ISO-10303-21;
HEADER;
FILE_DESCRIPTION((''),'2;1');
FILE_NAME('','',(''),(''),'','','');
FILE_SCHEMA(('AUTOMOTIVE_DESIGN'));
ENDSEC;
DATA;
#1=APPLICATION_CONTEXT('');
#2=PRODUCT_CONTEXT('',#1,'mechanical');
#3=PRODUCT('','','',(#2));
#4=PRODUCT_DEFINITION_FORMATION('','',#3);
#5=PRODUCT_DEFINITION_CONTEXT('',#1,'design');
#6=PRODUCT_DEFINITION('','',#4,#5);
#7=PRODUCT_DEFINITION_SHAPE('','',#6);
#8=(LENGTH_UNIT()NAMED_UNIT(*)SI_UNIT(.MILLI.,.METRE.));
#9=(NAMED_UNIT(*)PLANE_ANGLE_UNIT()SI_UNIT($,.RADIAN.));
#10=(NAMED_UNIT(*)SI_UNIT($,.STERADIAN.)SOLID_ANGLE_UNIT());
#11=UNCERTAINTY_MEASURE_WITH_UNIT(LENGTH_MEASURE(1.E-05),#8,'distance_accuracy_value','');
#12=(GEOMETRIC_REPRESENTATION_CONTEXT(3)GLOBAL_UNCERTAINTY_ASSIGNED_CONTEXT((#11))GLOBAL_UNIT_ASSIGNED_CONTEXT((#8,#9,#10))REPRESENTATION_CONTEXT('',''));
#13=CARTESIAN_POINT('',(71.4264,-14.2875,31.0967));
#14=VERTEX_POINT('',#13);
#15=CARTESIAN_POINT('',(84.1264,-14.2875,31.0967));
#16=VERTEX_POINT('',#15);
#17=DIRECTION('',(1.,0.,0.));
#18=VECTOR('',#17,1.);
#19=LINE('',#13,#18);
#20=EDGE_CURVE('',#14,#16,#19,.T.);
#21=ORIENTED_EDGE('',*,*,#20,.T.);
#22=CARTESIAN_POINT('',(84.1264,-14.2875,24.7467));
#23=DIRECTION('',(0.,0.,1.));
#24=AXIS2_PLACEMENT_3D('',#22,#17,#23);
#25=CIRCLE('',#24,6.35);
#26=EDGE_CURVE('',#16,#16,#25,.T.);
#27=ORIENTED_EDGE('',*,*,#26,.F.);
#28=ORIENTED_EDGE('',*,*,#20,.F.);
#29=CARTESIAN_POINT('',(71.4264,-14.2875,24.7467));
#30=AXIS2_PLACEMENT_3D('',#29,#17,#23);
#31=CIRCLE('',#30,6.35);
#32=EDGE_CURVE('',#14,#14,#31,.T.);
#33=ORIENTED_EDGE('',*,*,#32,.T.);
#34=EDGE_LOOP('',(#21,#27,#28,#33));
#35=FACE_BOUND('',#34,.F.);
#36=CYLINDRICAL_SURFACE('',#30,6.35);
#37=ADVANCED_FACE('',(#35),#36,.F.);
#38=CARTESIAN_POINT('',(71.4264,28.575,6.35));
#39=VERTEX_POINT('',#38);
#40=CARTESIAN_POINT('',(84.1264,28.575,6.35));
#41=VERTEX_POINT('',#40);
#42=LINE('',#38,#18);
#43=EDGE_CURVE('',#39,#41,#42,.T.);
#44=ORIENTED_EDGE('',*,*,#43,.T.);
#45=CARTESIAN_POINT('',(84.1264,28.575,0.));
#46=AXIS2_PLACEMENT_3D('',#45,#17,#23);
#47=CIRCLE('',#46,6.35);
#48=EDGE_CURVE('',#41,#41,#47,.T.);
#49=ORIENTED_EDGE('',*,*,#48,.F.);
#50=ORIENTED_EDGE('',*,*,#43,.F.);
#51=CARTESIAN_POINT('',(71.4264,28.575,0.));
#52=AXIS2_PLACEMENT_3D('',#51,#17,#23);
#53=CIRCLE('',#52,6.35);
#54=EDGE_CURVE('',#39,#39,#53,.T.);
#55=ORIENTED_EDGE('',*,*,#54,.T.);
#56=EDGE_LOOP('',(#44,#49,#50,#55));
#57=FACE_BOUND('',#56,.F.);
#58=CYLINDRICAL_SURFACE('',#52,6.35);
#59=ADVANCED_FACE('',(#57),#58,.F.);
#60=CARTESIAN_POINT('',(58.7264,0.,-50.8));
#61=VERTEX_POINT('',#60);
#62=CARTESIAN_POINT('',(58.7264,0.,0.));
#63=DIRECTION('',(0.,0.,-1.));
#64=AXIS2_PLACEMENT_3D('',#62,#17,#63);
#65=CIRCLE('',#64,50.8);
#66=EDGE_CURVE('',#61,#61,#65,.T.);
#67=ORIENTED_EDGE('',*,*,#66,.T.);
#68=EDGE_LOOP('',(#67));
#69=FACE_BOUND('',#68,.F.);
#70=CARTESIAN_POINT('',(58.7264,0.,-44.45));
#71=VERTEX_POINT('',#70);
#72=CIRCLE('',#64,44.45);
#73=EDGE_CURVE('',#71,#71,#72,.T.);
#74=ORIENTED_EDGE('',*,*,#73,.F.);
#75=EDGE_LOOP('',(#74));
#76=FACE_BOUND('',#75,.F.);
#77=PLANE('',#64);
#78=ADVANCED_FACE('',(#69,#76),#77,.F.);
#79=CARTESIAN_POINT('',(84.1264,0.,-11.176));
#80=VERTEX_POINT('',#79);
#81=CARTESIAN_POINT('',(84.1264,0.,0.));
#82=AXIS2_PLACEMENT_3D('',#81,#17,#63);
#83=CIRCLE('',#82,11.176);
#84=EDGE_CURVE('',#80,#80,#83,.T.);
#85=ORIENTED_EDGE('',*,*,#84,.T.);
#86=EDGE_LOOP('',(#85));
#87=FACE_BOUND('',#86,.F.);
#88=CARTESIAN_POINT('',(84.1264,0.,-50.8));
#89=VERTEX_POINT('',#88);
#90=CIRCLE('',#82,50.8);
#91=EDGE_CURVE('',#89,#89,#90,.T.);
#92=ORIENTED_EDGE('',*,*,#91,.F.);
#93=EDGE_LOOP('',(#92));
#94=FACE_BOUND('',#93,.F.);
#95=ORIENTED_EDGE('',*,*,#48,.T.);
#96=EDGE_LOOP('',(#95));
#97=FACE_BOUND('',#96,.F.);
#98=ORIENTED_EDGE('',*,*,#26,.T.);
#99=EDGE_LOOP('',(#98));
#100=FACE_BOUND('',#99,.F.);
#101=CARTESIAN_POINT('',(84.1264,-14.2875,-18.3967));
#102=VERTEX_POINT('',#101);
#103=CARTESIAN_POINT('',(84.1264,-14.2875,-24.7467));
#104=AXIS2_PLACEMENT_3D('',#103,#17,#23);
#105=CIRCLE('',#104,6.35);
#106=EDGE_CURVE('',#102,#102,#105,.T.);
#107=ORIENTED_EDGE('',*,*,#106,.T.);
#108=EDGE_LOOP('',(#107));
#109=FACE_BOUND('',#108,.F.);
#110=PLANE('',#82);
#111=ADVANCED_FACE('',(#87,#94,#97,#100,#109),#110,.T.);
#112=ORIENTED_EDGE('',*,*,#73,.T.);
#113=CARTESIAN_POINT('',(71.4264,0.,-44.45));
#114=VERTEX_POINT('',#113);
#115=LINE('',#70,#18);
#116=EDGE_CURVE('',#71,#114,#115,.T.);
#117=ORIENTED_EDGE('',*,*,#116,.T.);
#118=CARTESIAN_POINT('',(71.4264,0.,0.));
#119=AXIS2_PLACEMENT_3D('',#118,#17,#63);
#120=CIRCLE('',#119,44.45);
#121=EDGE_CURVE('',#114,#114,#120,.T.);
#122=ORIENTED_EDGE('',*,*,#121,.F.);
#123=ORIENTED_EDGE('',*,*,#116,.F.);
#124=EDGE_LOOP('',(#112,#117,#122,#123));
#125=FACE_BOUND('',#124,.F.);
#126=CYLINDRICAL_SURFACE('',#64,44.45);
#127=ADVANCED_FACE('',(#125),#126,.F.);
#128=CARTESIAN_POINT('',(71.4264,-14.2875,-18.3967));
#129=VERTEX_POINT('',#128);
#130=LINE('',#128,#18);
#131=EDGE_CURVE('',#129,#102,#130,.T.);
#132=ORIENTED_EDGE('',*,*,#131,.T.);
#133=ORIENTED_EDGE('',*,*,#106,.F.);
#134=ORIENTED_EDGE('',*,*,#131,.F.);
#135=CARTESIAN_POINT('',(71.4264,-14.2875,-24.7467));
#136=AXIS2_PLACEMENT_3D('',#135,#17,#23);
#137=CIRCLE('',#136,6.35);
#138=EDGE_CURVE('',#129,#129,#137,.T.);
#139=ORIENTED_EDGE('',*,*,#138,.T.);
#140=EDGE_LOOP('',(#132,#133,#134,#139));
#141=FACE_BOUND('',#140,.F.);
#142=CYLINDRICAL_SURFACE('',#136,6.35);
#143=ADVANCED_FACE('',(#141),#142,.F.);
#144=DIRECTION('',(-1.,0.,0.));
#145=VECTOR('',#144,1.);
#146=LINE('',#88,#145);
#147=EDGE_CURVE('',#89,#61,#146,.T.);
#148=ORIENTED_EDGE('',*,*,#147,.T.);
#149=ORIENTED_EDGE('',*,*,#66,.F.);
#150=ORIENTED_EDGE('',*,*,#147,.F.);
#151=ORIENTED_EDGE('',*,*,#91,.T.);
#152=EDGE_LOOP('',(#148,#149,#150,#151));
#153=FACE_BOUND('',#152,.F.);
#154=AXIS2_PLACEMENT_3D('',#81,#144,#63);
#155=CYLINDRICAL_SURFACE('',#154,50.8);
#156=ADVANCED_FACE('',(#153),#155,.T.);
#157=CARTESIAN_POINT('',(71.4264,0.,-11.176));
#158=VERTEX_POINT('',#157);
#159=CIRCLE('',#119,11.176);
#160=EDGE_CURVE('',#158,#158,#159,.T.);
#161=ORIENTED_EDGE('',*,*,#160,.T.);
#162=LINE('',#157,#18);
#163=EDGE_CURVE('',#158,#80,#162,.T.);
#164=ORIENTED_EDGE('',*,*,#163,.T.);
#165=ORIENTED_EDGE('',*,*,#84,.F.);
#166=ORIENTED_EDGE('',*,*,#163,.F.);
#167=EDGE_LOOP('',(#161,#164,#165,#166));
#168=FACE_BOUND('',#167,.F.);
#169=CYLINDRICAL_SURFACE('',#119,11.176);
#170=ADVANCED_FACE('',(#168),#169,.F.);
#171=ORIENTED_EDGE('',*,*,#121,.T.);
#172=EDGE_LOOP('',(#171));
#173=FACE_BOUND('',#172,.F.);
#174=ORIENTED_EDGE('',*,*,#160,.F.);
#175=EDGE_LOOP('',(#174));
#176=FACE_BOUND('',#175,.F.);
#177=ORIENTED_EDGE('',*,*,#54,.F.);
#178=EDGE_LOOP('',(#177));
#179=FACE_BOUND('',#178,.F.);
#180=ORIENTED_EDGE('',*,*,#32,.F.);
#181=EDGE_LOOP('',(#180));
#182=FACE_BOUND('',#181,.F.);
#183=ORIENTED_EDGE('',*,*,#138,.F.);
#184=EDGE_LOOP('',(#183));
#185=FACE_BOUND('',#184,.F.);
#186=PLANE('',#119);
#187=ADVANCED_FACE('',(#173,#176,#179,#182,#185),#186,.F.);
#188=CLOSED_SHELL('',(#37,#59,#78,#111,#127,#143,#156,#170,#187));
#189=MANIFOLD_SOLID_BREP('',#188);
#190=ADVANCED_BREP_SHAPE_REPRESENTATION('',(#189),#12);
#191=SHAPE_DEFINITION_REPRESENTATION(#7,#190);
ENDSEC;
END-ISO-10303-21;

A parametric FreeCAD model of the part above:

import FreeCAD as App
import Part
import Sketcher
from FreeCAD import Vector
Q = App.Units.Quantity


def add_polygon(sketch, points):
    """Adds a closed chain of lines whose ends are joined by coincident constraints."""
    first, n = sketch.GeometryCount, len(points)
    for a, b in zip(points, points[1:] + points[:1]):
        sketch.addGeometry(Part.LineSegment(App.Vector(*a, 0), App.Vector(*b, 0)), False)
    for i in range(n):
        sketch.addConstraint(Sketcher.Constraint("Coincident", first + i, 2, first + (i + 1) % n, 1))

doc = App.newDocument("Part")
params = doc.addObject("Spreadsheet::Sheet", "Params")
for row, (alias, value) in enumerate([
    ("sketch1_width", "1 in"),
    ("sketch1_height", "0.25 in"),
    ("revolution_angle", "360 deg"),
    ("sketch2_diameter", "0.5 in"),
    ("hole_diameter", "0.5 in"),
], start=1):
    params.set(f"A{row}", alias)
    params.set(f"B{row}", "=" + value)
    params.setAlias(f"B{row}", alias)

body = doc.addObject("PartDesign::Body", "Body")

sketch1 = body.newObject("Sketcher::SketchObject", "Sketch")
sketch1.AttachmentSupport = (doc.getObject("XZ_Plane"), [""])
sketch1.MapMode = "FlatFace"
add_polygon(sketch1, [(71, -11), (84, -11), (84, -51), (59, -51), (59, -44), (71, -44)])
sketch1.addConstraint([
    Sketcher.Constraint("Horizontal", 0),
    Sketcher.Constraint("Vertical", 1),
    Sketcher.Constraint("Horizontal", 2),
    Sketcher.Constraint("Vertical", 3),
    Sketcher.Constraint("Horizontal", 4),
    Sketcher.Constraint("Vertical", 5),
    Sketcher.Constraint("Equal", 0, 4),
    Sketcher.Constraint("DistanceX", 2, 2, 2, 1, Q("1 in")),
    Sketcher.Constraint("DistanceY", 1, 2, -1, 1, Q("2 in")),
    Sketcher.Constraint("DistanceY", 3, 1, 3, 2, Q("0.25 in")),
    Sketcher.Constraint("DistanceY", 0, 2, -1, 1, Q("0.44 in")),
    Sketcher.Constraint("DistanceX", -1, 1, 4, 2, Q("71.4264 mm")),
])
sketch1.setExpression("Constraints[13]", "Params.sketch1_width")
sketch1.setExpression("Constraints[15]", "Params.sketch1_height")
revolution = body.newObject("PartDesign::Revolution", "Revolution")
revolution.Profile = sketch1
revolution.ReferenceAxis = (sketch1, ["H_Axis"])
revolution.setExpression("Angle", "Params.revolution_angle")

sketch2 = body.newObject("Sketcher::SketchObject", "Sketch001")
sketch2.AttachmentSupport = (doc.getObject("YZ_Plane"), [""])
sketch2.MapMode = "FlatFace"
sketch2.AttachmentOffset = App.Placement(Vector(0, 0, 71.4264), App.Rotation())
sketch2.addGeometry([
    Part.Circle(Vector(29, 0, 0), Vector(0, 0, 1), 6),
    Part.Circle(Vector(-14, -25, 0), Vector(0, 0, 1), 6),
    Part.Circle(Vector(-14, 25, 0), Vector(0, 0, 1), 6),
], False)
sketch2.addConstraint([
    Sketcher.Constraint("Equal", 0, 1),
    Sketcher.Constraint("Equal", 1, 2),
    Sketcher.Constraint("Symmetric", 1, 3, 2, 3, -1),
    Sketcher.Constraint("PointOnObject", 0, 3, -1),
    Sketcher.Constraint("Diameter", 0, Q("0.5 in")),
    Sketcher.Constraint("DistanceX", -1, 1, 0, 3, Q("1.125 in")),
    Sketcher.Constraint("DistanceX", 1, 3, -1, 1, Q("0.5625 in")),
    Sketcher.Constraint("DistanceY", 1, 3, -1, 1, Q("24.7467 mm")),
])
sketch2.setExpression("Constraints[4]", "Params.sketch2_diameter")
doc.recompute()
hole = body.newObject("PartDesign::Hole", "Hole")
hole.Profile = sketch2
hole.ThreadType = "None"
hole.setExpression("Diameter", "Params.hole_diameter")
hole.DepthType = "ThroughAll"
hole.Reversed = True

doc.recompute()
